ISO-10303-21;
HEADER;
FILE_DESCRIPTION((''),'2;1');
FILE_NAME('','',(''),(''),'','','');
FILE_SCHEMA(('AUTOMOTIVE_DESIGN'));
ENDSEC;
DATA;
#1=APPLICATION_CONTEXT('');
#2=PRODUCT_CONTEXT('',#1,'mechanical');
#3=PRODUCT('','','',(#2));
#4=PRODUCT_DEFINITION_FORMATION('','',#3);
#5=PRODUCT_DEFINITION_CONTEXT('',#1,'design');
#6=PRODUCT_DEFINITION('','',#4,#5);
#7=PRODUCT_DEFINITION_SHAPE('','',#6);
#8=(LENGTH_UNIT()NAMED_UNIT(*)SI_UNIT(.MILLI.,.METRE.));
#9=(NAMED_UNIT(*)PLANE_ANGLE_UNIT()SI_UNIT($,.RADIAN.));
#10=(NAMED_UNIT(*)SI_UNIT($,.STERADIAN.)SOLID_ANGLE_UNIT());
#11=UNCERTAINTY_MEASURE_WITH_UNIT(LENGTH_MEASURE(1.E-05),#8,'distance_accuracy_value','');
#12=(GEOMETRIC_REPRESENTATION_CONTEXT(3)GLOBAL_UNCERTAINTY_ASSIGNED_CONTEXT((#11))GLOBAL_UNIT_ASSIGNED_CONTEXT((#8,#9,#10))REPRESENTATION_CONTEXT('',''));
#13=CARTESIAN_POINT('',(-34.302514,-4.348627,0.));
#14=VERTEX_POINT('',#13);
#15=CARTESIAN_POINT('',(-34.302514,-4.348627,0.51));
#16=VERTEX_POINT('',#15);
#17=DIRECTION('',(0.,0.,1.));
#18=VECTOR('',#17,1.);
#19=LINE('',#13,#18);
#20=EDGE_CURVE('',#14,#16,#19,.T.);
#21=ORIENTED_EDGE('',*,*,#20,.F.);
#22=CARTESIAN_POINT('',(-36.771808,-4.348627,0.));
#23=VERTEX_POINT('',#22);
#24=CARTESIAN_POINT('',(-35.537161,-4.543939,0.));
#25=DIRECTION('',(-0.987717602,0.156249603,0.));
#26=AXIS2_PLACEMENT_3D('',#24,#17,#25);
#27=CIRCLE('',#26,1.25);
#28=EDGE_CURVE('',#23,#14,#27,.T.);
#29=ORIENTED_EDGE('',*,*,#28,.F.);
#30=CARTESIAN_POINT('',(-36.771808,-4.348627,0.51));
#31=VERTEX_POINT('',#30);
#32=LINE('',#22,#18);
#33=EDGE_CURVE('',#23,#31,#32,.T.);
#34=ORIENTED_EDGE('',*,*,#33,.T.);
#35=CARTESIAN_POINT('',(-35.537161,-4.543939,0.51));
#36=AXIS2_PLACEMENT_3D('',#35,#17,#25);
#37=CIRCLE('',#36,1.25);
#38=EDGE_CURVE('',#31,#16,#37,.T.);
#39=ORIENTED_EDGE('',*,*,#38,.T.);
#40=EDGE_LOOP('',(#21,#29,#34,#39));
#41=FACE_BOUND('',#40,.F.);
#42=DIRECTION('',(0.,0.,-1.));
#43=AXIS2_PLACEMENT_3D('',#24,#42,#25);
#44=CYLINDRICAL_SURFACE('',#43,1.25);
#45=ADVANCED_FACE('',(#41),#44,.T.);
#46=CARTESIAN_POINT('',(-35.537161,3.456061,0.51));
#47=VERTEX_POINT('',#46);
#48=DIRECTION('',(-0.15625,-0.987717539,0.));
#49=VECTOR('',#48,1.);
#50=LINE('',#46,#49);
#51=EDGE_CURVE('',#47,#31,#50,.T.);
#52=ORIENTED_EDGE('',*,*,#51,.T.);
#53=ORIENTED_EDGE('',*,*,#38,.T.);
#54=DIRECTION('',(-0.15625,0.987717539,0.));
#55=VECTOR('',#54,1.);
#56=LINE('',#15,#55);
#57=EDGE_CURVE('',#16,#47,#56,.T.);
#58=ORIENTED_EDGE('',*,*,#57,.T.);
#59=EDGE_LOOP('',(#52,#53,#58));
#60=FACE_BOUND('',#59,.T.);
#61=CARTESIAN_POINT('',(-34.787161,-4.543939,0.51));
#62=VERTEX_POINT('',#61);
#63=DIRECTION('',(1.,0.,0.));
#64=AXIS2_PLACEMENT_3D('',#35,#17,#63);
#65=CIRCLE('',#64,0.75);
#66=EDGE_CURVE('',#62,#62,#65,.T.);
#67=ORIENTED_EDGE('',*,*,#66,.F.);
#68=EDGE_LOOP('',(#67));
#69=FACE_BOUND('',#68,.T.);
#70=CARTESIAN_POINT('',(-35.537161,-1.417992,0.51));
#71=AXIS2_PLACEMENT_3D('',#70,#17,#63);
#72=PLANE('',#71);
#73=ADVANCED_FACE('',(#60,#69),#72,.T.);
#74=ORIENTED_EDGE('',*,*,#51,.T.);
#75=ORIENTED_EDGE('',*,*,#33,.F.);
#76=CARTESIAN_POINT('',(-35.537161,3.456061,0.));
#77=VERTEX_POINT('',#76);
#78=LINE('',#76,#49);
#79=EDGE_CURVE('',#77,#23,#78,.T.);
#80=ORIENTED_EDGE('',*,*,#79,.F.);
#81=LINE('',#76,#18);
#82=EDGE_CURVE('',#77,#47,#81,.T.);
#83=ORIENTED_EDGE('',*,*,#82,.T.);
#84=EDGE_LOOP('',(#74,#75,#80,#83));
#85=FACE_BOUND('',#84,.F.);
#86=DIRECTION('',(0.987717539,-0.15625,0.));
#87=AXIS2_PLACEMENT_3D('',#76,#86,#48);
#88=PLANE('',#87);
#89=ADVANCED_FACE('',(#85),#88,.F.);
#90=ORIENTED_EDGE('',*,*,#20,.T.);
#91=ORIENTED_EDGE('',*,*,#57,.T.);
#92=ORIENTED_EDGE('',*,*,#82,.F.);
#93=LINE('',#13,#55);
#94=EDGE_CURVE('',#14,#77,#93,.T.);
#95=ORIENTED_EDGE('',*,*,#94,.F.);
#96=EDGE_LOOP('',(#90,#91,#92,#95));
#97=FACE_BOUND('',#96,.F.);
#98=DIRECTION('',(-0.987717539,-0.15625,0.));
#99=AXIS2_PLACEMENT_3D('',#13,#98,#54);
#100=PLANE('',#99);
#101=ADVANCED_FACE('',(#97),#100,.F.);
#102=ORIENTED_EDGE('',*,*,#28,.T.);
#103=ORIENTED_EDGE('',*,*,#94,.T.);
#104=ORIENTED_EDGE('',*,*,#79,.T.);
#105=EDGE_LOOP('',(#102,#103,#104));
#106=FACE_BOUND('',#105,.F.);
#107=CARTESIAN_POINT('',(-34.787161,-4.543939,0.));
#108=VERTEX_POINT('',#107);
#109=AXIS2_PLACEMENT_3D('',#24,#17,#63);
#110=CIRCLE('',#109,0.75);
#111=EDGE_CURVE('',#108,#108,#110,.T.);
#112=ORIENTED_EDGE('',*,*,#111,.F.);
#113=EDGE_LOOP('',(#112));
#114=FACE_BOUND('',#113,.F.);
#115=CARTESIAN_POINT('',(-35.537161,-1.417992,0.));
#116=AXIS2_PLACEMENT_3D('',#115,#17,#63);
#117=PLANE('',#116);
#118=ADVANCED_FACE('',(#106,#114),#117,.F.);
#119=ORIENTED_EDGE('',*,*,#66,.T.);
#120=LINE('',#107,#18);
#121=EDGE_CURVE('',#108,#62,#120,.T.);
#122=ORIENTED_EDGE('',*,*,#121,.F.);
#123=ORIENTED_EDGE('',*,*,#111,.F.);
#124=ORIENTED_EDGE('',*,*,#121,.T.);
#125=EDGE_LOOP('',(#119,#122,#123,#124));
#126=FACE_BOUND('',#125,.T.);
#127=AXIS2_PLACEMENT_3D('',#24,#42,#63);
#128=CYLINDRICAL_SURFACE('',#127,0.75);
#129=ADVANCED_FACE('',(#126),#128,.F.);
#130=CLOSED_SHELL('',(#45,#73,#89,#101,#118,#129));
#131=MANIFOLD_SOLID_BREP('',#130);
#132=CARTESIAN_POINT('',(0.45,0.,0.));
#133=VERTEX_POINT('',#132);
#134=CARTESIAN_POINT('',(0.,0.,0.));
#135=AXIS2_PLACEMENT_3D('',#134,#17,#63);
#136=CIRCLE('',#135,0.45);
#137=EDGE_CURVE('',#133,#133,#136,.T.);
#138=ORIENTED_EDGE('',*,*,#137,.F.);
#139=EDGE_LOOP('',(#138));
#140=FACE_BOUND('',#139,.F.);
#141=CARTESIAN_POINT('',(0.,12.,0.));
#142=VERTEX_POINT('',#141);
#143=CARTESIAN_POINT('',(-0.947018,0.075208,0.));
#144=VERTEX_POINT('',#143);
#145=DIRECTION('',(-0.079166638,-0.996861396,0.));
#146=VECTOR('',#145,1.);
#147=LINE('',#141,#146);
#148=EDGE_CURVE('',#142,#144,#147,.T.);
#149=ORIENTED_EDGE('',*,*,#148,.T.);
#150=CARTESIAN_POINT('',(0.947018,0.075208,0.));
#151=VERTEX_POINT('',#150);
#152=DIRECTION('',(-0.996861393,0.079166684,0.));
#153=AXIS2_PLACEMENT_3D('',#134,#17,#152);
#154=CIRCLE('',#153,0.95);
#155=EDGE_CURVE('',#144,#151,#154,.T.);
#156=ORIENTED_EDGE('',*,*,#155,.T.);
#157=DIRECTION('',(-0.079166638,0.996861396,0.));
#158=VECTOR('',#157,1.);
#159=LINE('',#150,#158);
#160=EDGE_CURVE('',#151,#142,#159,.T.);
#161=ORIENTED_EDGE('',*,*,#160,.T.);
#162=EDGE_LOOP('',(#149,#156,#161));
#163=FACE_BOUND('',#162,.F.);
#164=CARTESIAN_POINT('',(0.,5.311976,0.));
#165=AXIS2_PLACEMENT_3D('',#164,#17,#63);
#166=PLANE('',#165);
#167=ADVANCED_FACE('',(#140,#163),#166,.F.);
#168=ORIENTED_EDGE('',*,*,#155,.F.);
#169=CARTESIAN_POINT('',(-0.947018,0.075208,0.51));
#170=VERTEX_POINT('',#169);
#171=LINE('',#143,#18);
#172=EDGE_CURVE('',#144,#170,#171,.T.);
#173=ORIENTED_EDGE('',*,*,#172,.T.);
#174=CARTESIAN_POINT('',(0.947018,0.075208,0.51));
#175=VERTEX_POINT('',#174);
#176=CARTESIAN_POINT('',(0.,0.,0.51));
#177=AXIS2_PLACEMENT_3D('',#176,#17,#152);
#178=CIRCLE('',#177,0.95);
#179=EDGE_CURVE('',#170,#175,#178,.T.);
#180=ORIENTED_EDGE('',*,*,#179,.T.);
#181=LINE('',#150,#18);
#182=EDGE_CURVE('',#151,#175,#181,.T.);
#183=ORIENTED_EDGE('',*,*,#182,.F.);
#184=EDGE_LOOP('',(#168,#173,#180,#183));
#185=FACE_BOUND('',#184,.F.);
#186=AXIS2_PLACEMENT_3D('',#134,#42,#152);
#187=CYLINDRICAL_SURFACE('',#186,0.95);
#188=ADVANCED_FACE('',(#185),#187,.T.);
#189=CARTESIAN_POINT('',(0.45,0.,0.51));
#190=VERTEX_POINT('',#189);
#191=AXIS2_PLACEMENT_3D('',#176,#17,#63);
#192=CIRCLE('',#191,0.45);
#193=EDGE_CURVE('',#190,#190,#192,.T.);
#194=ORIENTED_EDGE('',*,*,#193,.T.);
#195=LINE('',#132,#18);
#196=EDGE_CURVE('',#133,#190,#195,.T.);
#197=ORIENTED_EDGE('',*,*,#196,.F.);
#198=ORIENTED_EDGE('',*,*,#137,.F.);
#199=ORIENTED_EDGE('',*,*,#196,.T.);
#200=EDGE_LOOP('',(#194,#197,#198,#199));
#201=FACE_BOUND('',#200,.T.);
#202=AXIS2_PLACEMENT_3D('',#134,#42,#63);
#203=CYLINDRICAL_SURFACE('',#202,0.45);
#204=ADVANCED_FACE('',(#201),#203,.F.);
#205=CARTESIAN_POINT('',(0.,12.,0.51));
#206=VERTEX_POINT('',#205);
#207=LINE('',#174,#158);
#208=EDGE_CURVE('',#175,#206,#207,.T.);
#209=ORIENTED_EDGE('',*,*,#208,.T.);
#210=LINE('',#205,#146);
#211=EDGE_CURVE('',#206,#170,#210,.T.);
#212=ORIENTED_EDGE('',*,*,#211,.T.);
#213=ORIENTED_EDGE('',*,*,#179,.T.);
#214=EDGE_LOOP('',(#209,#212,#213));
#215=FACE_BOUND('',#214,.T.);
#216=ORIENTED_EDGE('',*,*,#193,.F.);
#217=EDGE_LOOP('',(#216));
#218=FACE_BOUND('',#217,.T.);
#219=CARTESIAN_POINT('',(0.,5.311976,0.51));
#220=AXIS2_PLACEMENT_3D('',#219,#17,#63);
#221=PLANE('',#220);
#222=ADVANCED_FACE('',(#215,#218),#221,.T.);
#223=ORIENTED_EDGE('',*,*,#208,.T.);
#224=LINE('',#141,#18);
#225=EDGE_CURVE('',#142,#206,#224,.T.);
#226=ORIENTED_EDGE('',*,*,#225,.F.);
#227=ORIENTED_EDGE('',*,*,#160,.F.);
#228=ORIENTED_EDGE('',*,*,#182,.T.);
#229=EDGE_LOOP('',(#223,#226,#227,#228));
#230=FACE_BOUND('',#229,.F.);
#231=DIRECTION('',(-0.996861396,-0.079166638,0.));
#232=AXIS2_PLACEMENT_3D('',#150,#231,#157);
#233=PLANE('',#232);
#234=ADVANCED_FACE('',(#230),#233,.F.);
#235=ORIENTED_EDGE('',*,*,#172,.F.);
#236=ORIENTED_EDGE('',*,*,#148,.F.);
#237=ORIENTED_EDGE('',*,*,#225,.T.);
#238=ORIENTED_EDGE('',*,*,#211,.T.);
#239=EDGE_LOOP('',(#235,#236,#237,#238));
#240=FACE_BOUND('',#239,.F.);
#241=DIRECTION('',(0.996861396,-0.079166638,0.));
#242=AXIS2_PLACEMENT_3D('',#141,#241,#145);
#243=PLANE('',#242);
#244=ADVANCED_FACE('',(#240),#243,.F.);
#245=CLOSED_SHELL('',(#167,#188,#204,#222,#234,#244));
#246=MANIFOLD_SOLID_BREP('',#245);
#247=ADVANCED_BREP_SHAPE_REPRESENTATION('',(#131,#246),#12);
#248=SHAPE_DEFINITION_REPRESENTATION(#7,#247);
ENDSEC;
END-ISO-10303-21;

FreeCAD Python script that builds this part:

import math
import FreeCAD as App
import Part
import Sketcher

V = App.Vector
Q = App.Units.Quantity

doc = App.newDocument("Part")
params = doc.addObject("Spreadsheet::Sheet", "Params")
for row, (alias, value) in enumerate([
    ("sketch1_diameter", "0.9 mm"),
    ("sketch1_radius", "0.95 mm"),
    ("pad1_length", "0.51 mm"),
    ("sketch2_diameter", "1.5 mm"),
    ("sketch2_radius", "1.25 mm"),
    ("pad2_length", "0.51 mm"),
], start=1):
    params.set(f"A{row}", alias)
    params.set(f"B{row}", "=" + value)
    params.setAlias(f"B{row}", alias)

body = doc.addObject("PartDesign::Body", "Body")

# Sketch on XY plane
sketch1 = doc.addObject("Sketcher::SketchObject", "Sketch")
body.addObject(sketch1)
sketch1.AttachmentSupport = (doc.XY_Plane, [""])
sketch1.MapMode = "FlatFace"
sketch1.addGeometry([
    Part.LineSegment(V(0, 12, 0), V(-0.95, 0.08, 0)),
    Part.ArcOfCircle(Part.Circle(V(0, 0, 0), V(0, 0, 1), 0.95), math.radians(175), math.radians(365)),
    Part.LineSegment(V(0.95, 0.08, 0), V(0, 12, 0)),
    Part.Circle(V(0, 0, 0), V(0, 0, 1), 0.45),
], False)
sketch1.addConstraint([
    Sketcher.Constraint("Tangent", 0, 2, 1, 1),
    Sketcher.Constraint("Tangent", 1, 2, 2, 1),
    Sketcher.Constraint("Coincident", 2, 2, 0, 1),
    Sketcher.Constraint("Coincident", 1, 3, -1, 1),
    Sketcher.Constraint("Coincident", 3, 3, -1, 1),
    Sketcher.Constraint("PointOnObject", 2, 2, -2),
    Sketcher.Constraint("Diameter", 3, Q("0.9 mm")),
    Sketcher.Constraint("Radius", 1, Q("0.95 mm")),
    Sketcher.Constraint("DistanceY", -1, 1, 2, 2, Q("12 mm")),
])
sketch1.setExpression("Constraints[6]", "Params.sketch1_diameter")
sketch1.setExpression("Constraints[7]", "Params.sketch1_radius")
pad1 = doc.addObject("PartDesign::Pad", "Pad")
body.addObject(pad1)
pad1.Profile = sketch1
pad1.setExpression("Length", "Params.pad1_length")
body2 = doc.addObject("PartDesign::Body", "Body001")

# Sketch on XY plane
sketch2 = doc.addObject("Sketcher::SketchObject", "Sketch001")
body2.addObject(sketch2)
sketch2.AttachmentSupport = (doc.getObject("XY_Plane001"), [""])
sketch2.MapMode = "FlatFace"
sketch2.addGeometry([
    Part.LineSegment(V(-35.5, 3.5, 0), V(-36.8, -4.3, 0)),
    Part.ArcOfCircle(Part.Circle(V(-35.5, -4.5, 0), V(0, 0, 1), 1.2), math.radians(171), math.radians(369)),
    Part.LineSegment(V(-34.3, -4.3, 0), V(-35.5, 3.5, 0)),
    Part.Circle(V(-35.5, -4.5, 0), V(0, 0, 1), 0.8),
], False)
sketch2.addConstraint([
    Sketcher.Constraint("Tangent", 0, 2, 1, 1),
    Sketcher.Constraint("Tangent", 1, 2, 2, 1),
    Sketcher.Constraint("Coincident", 2, 2, 0, 1),
    Sketcher.Constraint("Coincident", 3, 3, 1, 3),
    Sketcher.Constraint("Horizontal", 0, 2, 1, 2),
    Sketcher.Constraint("Diameter", 3, Q("1.5 mm")),
    Sketcher.Constraint("Radius", 1, Q("1.25 mm")),
    Sketcher.Constraint("DistanceY", 3, 3, 2, 2, Q("8 mm")),
    Sketcher.Constraint("DistanceX", 1, 3, -1, 1, Q("35.537161 mm")),
    Sketcher.Constraint("DistanceY", 1, 3, -1, 1, Q("4.543939 mm")),
])
sketch2.setExpression("Constraints[5]", "Params.sketch2_diameter")
sketch2.setExpression("Constraints[6]", "Params.sketch2_radius")
pad2 = doc.addObject("PartDesign::Pad", "Pad001")
body2.addObject(pad2)
pad2.Profile = sketch2
pad2.setExpression("Length", "Params.pad2_length")

doc.recompute()
